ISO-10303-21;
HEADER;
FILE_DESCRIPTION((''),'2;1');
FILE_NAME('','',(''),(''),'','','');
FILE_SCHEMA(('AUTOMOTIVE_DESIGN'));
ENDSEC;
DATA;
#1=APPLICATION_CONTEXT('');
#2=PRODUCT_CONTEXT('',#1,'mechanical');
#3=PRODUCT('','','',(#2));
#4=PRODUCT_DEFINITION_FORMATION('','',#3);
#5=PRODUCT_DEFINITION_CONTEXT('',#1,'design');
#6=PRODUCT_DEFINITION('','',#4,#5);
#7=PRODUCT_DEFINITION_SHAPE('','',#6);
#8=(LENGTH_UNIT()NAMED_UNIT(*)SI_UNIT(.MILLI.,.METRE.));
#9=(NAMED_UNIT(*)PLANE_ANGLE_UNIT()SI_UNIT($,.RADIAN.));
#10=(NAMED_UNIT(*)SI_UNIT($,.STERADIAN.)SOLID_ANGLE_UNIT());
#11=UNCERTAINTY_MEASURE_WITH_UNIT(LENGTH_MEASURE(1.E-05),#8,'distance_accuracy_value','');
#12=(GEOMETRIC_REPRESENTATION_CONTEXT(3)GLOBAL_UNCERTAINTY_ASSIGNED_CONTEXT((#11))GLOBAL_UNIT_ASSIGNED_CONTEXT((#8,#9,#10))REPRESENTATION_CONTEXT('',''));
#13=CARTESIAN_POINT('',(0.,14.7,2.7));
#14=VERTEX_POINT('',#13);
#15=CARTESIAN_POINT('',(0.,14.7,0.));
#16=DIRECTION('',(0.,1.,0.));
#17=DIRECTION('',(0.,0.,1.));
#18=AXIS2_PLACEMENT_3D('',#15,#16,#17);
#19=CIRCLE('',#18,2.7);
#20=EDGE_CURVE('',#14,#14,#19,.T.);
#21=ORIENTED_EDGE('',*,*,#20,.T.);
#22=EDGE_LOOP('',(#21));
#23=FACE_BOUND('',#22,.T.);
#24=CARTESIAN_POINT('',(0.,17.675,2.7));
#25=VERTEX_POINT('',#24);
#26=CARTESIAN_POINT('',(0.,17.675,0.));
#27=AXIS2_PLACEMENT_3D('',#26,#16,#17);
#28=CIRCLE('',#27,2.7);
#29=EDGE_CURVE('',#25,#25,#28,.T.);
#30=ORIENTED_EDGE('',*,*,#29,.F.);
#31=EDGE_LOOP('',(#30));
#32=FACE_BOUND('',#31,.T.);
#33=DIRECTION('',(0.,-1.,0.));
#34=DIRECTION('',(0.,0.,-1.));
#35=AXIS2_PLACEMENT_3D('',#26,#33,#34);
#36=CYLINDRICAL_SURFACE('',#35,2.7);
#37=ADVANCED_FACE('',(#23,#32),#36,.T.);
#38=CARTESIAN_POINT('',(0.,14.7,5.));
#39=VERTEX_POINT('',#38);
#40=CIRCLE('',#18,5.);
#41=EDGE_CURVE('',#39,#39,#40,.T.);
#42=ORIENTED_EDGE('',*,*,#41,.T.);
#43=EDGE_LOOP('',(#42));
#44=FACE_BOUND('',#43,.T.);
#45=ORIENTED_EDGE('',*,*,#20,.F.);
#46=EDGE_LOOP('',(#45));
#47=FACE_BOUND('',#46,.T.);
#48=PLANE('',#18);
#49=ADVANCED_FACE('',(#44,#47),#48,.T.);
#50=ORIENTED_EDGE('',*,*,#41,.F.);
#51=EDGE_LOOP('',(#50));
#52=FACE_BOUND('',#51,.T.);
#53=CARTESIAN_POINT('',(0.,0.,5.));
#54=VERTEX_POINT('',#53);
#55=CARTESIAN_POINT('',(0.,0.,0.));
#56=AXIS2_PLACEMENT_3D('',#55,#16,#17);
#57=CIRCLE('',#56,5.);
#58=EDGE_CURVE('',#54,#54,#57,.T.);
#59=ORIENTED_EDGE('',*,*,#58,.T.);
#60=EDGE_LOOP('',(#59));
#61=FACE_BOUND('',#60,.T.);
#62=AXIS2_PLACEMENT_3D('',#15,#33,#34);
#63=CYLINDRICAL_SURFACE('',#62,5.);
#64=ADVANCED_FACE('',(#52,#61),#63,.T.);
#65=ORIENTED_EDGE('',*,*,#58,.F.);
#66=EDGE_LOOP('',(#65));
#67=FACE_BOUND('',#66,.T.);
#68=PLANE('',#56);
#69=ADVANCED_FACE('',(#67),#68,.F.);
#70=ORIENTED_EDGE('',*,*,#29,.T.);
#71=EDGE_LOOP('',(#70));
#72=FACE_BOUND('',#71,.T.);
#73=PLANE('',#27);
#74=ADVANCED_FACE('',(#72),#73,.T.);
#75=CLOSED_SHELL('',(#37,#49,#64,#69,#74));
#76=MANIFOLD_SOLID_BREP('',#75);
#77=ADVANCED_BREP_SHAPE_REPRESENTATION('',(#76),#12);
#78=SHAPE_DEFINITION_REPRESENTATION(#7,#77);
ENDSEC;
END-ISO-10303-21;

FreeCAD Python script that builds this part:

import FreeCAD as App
import Part
import Sketcher
from FreeCAD import Vector
Q = App.Units.Quantity

doc = App.newDocument("Part")
body = doc.addObject("PartDesign::Body", "Body")

sketch1 = body.newObject("Sketcher::SketchObject", "Sketch")
sketch1.AttachmentSupport = (doc.getObject("XZ_Plane"), [""])
sketch1.MapMode = "FlatFace"
sketch1.addGeometry([
    Part.Circle(Vector(0, 0, 0), Vector(0, 0, 1), 5),
    Part.Circle(Vector(0, 0, 0), Vector(0, 0, 1), 2.7),
], False)
sketch1.addConstraint([
    Sketcher.Constraint("Coincident", 0, 3, -1, 1),
    Sketcher.Constraint("Coincident", 1, 3, -1, 1),
    Sketcher.Constraint("Diameter", 0, Q("10 mm")),
    Sketcher.Constraint("Diameter", 1, Q("5.4 mm")),
])
pad1 = body.newObject("PartDesign::Pad", "Pad")
pad1.Profile = sketch1
pad1.Length = 14.7
pad1.Reversed = True

sketch2 = body.newObject("Sketcher::SketchObject", "Sketch001")
sketch2.AttachmentSupport = (doc.getObject("XZ_Plane"), [""])
sketch2.MapMode = "FlatFace"
sketch2.addGeometry(Part.Circle(Vector(0, 0, 0), Vector(0, 0, 1), 2.7), False)
sketch2.addConstraint([
    Sketcher.Constraint("Coincident", 0, 3, -1, 1),
    Sketcher.Constraint("Diameter", 0, Q("5.4 mm")),
])
pad2 = body.newObject("PartDesign::Pad", "Pad001")
pad2.Profile = sketch2
pad2.Length = 17.675
pad2.Reversed = True

doc.recompute()
